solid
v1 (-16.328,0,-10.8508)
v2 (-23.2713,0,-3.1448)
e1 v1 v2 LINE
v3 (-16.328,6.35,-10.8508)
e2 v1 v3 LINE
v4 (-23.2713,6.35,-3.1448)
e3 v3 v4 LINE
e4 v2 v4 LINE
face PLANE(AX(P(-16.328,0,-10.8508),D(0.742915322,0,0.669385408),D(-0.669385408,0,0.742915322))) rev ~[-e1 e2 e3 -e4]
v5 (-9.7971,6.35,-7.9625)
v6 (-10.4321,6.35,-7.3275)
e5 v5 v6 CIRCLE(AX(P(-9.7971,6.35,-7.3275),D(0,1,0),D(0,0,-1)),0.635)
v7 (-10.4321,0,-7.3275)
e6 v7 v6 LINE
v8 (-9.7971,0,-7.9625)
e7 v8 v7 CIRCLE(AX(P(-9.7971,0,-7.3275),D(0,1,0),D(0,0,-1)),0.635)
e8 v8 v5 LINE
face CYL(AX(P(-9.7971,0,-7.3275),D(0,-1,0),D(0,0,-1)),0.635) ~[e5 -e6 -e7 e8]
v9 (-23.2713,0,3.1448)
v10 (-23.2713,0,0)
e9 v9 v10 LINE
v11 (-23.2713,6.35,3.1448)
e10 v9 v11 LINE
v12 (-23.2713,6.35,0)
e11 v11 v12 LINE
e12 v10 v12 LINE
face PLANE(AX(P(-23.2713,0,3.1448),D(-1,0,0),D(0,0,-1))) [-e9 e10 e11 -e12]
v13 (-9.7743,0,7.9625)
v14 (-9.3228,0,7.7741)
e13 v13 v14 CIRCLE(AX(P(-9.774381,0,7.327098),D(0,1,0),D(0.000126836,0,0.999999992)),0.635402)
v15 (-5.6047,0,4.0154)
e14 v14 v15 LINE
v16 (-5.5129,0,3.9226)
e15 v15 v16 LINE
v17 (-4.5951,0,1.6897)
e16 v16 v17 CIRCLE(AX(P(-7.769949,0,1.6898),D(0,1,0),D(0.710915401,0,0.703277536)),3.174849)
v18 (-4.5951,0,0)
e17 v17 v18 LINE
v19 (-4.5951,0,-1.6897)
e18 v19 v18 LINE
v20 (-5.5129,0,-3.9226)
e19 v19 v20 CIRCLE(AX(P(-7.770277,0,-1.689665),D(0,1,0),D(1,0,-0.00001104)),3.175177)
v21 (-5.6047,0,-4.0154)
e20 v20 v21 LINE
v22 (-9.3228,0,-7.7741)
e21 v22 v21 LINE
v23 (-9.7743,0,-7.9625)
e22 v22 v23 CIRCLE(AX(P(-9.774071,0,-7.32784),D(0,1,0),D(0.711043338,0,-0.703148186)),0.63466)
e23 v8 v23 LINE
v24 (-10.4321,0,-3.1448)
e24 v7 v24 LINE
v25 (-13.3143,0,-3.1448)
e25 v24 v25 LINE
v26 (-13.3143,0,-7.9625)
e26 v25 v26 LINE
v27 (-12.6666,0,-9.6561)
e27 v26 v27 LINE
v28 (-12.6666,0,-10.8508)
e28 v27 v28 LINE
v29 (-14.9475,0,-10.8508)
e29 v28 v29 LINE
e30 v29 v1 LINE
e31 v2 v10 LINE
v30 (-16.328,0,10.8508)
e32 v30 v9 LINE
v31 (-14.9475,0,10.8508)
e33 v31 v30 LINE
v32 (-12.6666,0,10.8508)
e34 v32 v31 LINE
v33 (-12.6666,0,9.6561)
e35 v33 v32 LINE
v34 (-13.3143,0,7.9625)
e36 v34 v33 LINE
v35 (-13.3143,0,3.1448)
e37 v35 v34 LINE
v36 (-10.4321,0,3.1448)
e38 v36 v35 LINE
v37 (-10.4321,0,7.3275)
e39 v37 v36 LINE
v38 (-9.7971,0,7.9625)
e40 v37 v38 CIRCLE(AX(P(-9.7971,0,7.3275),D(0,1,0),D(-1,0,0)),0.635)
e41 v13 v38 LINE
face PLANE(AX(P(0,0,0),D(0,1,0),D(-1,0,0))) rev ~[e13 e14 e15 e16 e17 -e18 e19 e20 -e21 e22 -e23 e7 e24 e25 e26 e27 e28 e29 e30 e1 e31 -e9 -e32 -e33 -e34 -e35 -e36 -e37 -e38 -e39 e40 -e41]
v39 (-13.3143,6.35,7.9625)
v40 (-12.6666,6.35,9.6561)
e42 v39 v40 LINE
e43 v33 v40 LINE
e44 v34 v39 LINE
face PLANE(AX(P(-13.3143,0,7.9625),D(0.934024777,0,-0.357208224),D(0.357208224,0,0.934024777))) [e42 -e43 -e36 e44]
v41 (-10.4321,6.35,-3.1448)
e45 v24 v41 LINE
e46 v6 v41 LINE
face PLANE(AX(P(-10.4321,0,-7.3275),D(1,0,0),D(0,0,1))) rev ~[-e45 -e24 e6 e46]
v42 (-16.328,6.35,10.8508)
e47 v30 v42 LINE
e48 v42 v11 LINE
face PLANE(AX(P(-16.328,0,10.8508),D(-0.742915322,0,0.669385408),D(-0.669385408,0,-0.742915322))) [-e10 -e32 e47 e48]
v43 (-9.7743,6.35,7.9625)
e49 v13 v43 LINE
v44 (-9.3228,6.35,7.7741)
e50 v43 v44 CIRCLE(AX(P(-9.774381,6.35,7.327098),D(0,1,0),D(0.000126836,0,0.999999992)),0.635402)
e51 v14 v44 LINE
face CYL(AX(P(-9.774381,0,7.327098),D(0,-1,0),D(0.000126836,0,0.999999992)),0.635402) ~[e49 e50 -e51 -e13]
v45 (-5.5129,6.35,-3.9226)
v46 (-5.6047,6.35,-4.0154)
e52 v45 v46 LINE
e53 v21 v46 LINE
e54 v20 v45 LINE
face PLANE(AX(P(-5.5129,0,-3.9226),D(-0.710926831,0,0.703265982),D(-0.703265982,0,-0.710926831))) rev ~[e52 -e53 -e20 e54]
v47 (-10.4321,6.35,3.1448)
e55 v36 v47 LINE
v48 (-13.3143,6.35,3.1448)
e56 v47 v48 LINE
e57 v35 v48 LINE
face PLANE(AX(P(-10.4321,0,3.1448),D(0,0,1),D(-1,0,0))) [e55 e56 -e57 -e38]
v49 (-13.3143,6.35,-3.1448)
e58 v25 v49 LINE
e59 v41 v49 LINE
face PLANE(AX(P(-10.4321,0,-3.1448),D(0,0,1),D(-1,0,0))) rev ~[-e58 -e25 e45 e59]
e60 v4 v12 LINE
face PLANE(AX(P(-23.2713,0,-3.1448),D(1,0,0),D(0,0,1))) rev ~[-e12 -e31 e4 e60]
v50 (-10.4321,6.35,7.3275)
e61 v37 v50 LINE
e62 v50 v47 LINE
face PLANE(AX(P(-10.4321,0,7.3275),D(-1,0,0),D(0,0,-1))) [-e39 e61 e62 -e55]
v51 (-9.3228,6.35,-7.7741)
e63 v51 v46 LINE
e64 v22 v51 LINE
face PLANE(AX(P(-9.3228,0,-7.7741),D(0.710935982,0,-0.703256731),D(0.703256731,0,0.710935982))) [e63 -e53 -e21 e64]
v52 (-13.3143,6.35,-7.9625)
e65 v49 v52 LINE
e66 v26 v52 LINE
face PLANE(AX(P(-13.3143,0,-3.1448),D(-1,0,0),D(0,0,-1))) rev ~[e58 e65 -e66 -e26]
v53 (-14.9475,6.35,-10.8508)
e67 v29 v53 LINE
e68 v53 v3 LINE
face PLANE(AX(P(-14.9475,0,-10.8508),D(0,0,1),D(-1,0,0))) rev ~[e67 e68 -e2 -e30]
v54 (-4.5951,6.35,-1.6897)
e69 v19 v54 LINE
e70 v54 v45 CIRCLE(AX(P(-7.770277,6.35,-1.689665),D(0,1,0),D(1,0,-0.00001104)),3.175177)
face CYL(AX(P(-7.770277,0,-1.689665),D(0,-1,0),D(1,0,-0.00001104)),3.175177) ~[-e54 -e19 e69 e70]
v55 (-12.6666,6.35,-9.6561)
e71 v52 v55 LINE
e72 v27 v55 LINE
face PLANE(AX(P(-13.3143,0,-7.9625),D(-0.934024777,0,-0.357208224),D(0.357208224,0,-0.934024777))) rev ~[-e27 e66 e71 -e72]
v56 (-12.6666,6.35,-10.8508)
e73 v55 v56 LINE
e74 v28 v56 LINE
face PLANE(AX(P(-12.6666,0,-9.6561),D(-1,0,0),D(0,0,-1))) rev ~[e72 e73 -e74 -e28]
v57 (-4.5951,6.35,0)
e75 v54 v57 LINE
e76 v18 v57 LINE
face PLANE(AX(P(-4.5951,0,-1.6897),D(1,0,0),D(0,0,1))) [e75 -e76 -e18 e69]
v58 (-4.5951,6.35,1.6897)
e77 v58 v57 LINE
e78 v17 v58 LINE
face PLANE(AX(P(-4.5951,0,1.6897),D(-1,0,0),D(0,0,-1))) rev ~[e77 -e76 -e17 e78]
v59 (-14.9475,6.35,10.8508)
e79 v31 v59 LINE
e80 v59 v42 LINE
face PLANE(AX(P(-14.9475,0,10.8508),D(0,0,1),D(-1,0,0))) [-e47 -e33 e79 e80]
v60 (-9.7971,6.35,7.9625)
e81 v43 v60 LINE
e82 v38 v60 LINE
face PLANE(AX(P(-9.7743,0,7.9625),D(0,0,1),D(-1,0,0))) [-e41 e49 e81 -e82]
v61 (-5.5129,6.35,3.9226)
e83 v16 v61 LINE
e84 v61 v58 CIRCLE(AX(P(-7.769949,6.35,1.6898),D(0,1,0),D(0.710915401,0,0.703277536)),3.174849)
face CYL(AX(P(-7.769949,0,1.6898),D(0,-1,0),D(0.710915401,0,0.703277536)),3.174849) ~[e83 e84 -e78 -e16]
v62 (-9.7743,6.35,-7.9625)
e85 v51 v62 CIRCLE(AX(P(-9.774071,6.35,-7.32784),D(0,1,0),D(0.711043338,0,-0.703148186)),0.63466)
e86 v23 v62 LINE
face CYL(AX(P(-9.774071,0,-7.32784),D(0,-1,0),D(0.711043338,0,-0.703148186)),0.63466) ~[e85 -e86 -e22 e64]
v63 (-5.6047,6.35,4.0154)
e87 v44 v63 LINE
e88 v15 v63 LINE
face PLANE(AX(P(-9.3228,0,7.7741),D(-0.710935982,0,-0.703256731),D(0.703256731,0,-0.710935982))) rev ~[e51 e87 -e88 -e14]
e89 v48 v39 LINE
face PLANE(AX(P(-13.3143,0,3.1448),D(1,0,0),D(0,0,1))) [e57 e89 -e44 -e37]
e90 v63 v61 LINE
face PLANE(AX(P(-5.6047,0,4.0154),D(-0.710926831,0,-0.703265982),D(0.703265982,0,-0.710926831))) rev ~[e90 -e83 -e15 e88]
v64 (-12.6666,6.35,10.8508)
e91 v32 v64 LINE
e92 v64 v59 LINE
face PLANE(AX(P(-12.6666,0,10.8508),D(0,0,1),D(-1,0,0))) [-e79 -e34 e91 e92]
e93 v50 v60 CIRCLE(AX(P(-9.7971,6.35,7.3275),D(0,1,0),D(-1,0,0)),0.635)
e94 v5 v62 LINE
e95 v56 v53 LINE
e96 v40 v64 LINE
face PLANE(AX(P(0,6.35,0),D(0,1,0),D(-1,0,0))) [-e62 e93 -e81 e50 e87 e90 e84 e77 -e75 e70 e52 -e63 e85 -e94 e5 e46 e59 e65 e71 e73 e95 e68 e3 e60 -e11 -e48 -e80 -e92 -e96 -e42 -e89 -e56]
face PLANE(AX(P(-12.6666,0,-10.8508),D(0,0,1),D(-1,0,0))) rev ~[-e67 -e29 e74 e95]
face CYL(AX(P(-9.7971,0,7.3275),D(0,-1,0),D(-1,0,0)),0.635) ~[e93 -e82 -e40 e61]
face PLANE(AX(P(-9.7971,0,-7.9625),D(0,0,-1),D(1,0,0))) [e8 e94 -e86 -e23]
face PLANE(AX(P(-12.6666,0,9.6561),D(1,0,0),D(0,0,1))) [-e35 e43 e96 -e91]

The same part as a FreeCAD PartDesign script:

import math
import FreeCAD as App
import Part
import Sketcher
from FreeCAD import Vector
Q = App.Units.Quantity

doc = App.newDocument("Part")
body = doc.addObject("PartDesign::Body", "Body")

sketch1 = body.newObject("Sketcher::SketchObject", "Sketch")
sketch1.AttachmentSupport = (doc.getObject("XZ_Plane"), [""])
sketch1.MapMode = "FlatFace"
sketch1.addGeometry([
    Part.ArcOfCircle(Part.Circle(Vector(-9.774, 7.327, 0), Vector(0, 0, 1), 0.635), math.radians(45), math.radians(90)),
    Part.LineSegment(Vector(-9.323, 7.774, 0), Vector(-5.605, 4.015, 0)),
    Part.LineSegment(Vector(-5.605, 4.015, 0), Vector(-5.513, 3.923, 0)),
    Part.ArcOfCircle(Part.Circle(Vector(-7.77, 1.69, 0), Vector(0, 0, 1), 3.175), math.radians(0), math.radians(45)),
    Part.LineSegment(Vector(-4.595, 1.69, 0), Vector(-4.595, -1.69, 0)),
    Part.ArcOfCircle(Part.Circle(Vector(-7.77, -1.69, 0), Vector(0, 0, 1), 3.175), math.radians(-45), math.radians(0)),
    Part.LineSegment(Vector(-5.513, -3.923, 0), Vector(-5.605, -4.015, 0)),
    Part.LineSegment(Vector(-5.605, -4.015, 0), Vector(-9.323, -7.774, 0)),
    Part.ArcOfCircle(Part.Circle(Vector(-9.774, -7.327, 0), Vector(0, 0, 1), 0.635), math.radians(-90), math.radians(-45)),
    Part.LineSegment(Vector(-9.774, -7.963, 0), Vector(-9.797, -7.963, 0)),
    Part.ArcOfCircle(Part.Circle(Vector(-9.797, -7.327, 0), Vector(0, 0, 1), 0.635), math.radians(180), math.radians(270)),
    Part.LineSegment(Vector(-10.432, -7.327, 0), Vector(-10.432, -3.145, 0)),
    Part.LineSegment(Vector(-10.432, -3.145, 0), Vector(-13.314, -3.145, 0)),
    Part.LineSegment(Vector(-13.314, -3.145, 0), Vector(-13.314, -7.963, 0)),
    Part.LineSegment(Vector(-13.314, -7.963, 0), Vector(-12.667, -9.656, 0)),
    Part.LineSegment(Vector(-12.667, -9.656, 0), Vector(-12.667, -10.851, 0)),
    Part.LineSegment(Vector(-12.667, -10.851, 0), Vector(-16.328, -10.851, 0)),
    Part.LineSegment(Vector(-16.328, -10.851, 0), Vector(-23.271, -3.145, 0)),
    Part.LineSegment(Vector(-23.271, -3.145, 0), Vector(-23.271, 3.145, 0)),
    Part.LineSegment(Vector(-23.271, 3.145, 0), Vector(-16.328, 10.851, 0)),
    Part.LineSegment(Vector(-16.328, 10.851, 0), Vector(-12.667, 10.851, 0)),
    Part.LineSegment(Vector(-12.667, 10.851, 0), Vector(-12.667, 9.656, 0)),
    Part.LineSegment(Vector(-12.667, 9.656, 0), Vector(-13.314, 7.963, 0)),
    Part.LineSegment(Vector(-13.314, 7.963, 0), Vector(-13.314, 3.145, 0)),
    Part.LineSegment(Vector(-13.314, 3.145, 0), Vector(-10.432, 3.145, 0)),
    Part.LineSegment(Vector(-10.432, 3.145, 0), Vector(-10.432, 7.327, 0)),
    Part.ArcOfCircle(Part.Circle(Vector(-9.797, 7.327, 0), Vector(0, 0, 1), 0.635), math.radians(90), math.radians(180)),
    Part.LineSegment(Vector(-9.797, 7.963, 0), Vector(-9.774, 7.963, 0)),
], False)
sketch1.addConstraint([
    Sketcher.Constraint("Tangent", 0, 1, 1, 1),
    Sketcher.Constraint("Coincident", 1, 2, 2, 1),
    Sketcher.Constraint("Tangent", 2, 2, 3, 2),
    Sketcher.Constraint("Tangent", 3, 1, 4, 1),
    Sketcher.Constraint("Tangent", 4, 2, 5, 2),
    Sketcher.Constraint("Tangent", 5, 1, 6, 1),
    Sketcher.Constraint("Coincident", 6, 2, 7, 1),
    Sketcher.Constraint("Tangent", 7, 2, 8, 2),
    Sketcher.Constraint("Tangent", 8, 1, 9, 1),
    Sketcher.Constraint("Tangent", 9, 2, 10, 2),
    Sketcher.Constraint("Tangent", 10, 1, 11, 1),
    Sketcher.Constraint("Coincident", 11, 2, 12, 1),
    Sketcher.Constraint("Coincident", 12, 2, 13, 1),
    Sketcher.Constraint("Coincident", 13, 2, 14, 1),
    Sketcher.Constraint("Coincident", 14, 2, 15, 1),
    Sketcher.Constraint("Coincident", 15, 2, 16, 1),
    Sketcher.Constraint("Coincident", 16, 2, 17, 1),
    Sketcher.Constraint("Coincident", 17, 2, 18, 1),
    Sketcher.Constraint("Coincident", 18, 2, 19, 1),
    Sketcher.Constraint("Coincident", 19, 2, 20, 1),
    Sketcher.Constraint("Coincident", 20, 2, 21, 1),
    Sketcher.Constraint("Coincident", 21, 2, 22, 1),
    Sketcher.Constraint("Coincident", 22, 2, 23, 1),
    Sketcher.Constraint("Coincident", 23, 2, 24, 1),
    Sketcher.Constraint("Coincident", 24, 2, 25, 1),
    Sketcher.Constraint("Tangent", 25, 2, 26, 2),
    Sketcher.Constraint("Tangent", 26, 1, 27, 1),
    Sketcher.Constraint("Tangent", 27, 2, 0, 2),
    Sketcher.Constraint("Vertical", 4),
    Sketcher.Constraint("Horizontal", 9),
    Sketcher.Constraint("Vertical", 11),
    Sketcher.Constraint("Horizontal", 12),
    Sketcher.Constraint("Vertical", 13),
    Sketcher.Constraint("Vertical", 15),
    Sketcher.Constraint("Horizontal", 16),
    Sketcher.Constraint("Vertical", 18),
    Sketcher.Constraint("Horizontal", 20),
    Sketcher.Constraint("Vertical", 21),
    Sketcher.Constraint("Vertical", 23),
    Sketcher.Constraint("Horizontal", 24),
    Sketcher.Constraint("Vertical", 25),
    Sketcher.Constraint("Horizontal", 27),
    Sketcher.Constraint("Equal", 3, 5),
    Sketcher.Constraint("Equal", 0, 8),
    Sketcher.Constraint("Equal", 8, 10),
    Sketcher.Constraint("Equal", 10, 26),
    Sketcher.Constraint("Symmetric", 0, 3, 8, 3, -1),
    Sketcher.Constraint("Symmetric", 2, 2, 5, 1, -1),
    Sketcher.Constraint("Symmetric", 16, 2, 19, 2, -1),
    Sketcher.Constraint("Symmetric", 14, 2, 21, 2, -1),
    Sketcher.Constraint("Symmetric", 13, 2, 22, 2, -1),
    Sketcher.Constraint("Symmetric", 11, 2, 24, 2, -1),
    Sketcher.Constraint("Parallel", 1, 2),
    Sketcher.Constraint("Horizontal", 9, 2, 13, 2),
    Sketcher.Constraint("Horizontal", 12, 2, 17, 2),
    Sketcher.Constraint("Horizontal", 18, 2, 23, 2),
    Sketcher.Constraint("Vertical", 1, 2, 6, 2),
    Sketcher.Constraint("Radius", 0, Q("0.025 in")),
    Sketcher.Constraint("Radius", 3, Q("0.125 in")),
    Sketcher.Constraint("Angle", 1, Q("-45.3111 deg")),
    Sketcher.Constraint("Angle", 14, Q("-69.0712 deg")),
    Sketcher.Constraint("Angle", 17, Q("132.0196 deg")),
    Sketcher.Constraint("DistanceX", 0, 1, 2, 2, Q("0.15 in")),
    Sketcher.Constraint("DistanceX", 9, 2, 9, 1, Q("0.0009 in")),
    Sketcher.Constraint("DistanceY", 5, 3, 0, 3, Q("0.355 in")),
    Sketcher.Constraint("DistanceX", 17, 2, 12, 2, Q("0.392 in")),
    Sketcher.Constraint("DistanceX", 12, 2, 12, 1, 2.8822),
    Sketcher.Constraint("DistanceX", 16, 2, 16, 1, 3.6614),
    Sketcher.Constraint("DistanceY", 11, 1, 11, 2, 4.1827),
    Sketcher.Constraint("DistanceY", 15, 2, 15, 1, 1.1947),
    Sketcher.Constraint("DistanceX", 3, 3, -1, 1, Q("0.3059 in")),
    Sketcher.Constraint("DistanceY", 1, 2, 0, 3, Q("0.1304 in")),
])
pad1 = body.newObject("PartDesign::Pad", "Pad")
pad1.Profile = sketch1
pad1.Length = Q("0.25 in")
pad1.Reversed = True

doc.recompute()
